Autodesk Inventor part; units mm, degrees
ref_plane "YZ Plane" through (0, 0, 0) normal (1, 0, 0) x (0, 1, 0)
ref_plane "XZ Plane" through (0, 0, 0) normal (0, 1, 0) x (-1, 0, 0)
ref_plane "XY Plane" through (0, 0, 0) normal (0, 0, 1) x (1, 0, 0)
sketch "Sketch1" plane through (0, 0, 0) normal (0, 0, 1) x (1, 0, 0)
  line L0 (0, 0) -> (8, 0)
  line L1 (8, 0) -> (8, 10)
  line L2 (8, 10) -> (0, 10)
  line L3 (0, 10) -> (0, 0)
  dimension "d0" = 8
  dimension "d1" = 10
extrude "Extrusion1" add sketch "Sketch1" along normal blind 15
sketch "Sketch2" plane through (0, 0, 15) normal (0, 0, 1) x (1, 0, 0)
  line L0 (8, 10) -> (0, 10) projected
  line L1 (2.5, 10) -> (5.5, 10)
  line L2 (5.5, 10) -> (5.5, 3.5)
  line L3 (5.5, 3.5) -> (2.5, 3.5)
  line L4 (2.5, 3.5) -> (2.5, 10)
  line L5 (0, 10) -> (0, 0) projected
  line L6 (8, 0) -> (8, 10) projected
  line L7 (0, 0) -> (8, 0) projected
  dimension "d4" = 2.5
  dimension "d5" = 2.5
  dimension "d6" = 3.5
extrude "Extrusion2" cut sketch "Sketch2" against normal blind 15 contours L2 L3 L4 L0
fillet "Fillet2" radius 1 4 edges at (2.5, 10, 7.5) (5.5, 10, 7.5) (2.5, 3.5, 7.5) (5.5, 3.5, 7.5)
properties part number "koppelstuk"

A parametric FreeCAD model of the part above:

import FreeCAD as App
import Part
import Sketcher

V = App.Vector
Q = App.Units.Quantity


def edges_at(feature, points):
    """Names of the edges that pass closest to the given points."""
    edges = feature.Shape.Edges
    near = lambda p: min(range(len(edges)), key=lambda i: edges[i].distToShape(Part.Vertex(*p))[0])
    return sorted({f"Edge{near(p) + 1}" for p in points})


def add_polygon(sketch, points):
    """Adds a closed chain of lines whose ends are joined by coincident constraints."""
    first, n = sketch.GeometryCount, len(points)
    for a, b in zip(points, points[1:] + points[:1]):
        sketch.addGeometry(Part.LineSegment(App.Vector(*a, 0), App.Vector(*b, 0)), False)
    for i in range(n):
        sketch.addConstraint(Sketcher.Constraint("Coincident", first + i, 2, first + (i + 1) % n, 1))

doc = App.newDocument("Part")
params = doc.addObject("Spreadsheet::Sheet", "Params")
for row, (alias, value) in enumerate([
    ("sketch1_width", "8 mm"),
    ("sketch1_height", "10 mm"),
    ("pad1_length", "15 mm"),
    ("sketch2_width", "3 mm"),
    ("sketch2_height", "6.5 mm"),
    ("pocket1_length", "15 mm"),
    ("fillet_radius", "1 mm"),
], start=1):
    params.set(f"A{row}", alias)
    params.set(f"B{row}", "=" + value)
    params.setAlias(f"B{row}", alias)

body = doc.addObject("PartDesign::Body", "Body")

# Sketch on XY plane
sketch1 = body.newObject("Sketcher::SketchObject", "Sketch")
sketch1.AttachmentSupport = (doc.getObject("XY_Plane"), [""])
sketch1.MapMode = "FlatFace"
add_polygon(sketch1, [(0, 10), (0, 0), (8, 0), (8, 10)])  # lines 0-3
sketch1.addConstraint(Sketcher.Constraint("Vertical", 0))
sketch1.addConstraint(Sketcher.Constraint("Horizontal", 1))
sketch1.addConstraint(Sketcher.Constraint("Vertical", 2))
sketch1.addConstraint(Sketcher.Constraint("Horizontal", 3))
sketch1.addConstraint(Sketcher.Constraint("Coincident", 0, 2, -1, 1))
sketch1.addConstraint(Sketcher.Constraint("DistanceX", 1, 1, 1, 2, Q("8 mm")))
sketch1.addConstraint(Sketcher.Constraint("DistanceY", 0, 2, 0, 1, Q("10 mm")))
sketch1.setExpression("Constraints[9]", "Params.sketch1_width")
sketch1.setExpression("Constraints[10]", "Params.sketch1_height")
pad1 = body.newObject("PartDesign::Pad", "Pad")
pad1.Profile = sketch1
pad1.setExpression("Length", "Params.pad1_length")

# Sketch on XY plane
sketch2 = body.newObject("Sketcher::SketchObject", "Sketch001")
sketch2.AttachmentSupport = (doc.getObject("XY_Plane"), [""])
sketch2.MapMode = "FlatFace"
sketch2.AttachmentOffset = App.Placement(V(0, 0, 15), App.Rotation())
add_polygon(sketch2, [(5.5, 3.5), (5.5, 10), (2.5, 10), (2.5, 3.5)])  # lines 0-3
sketch2.addConstraint(Sketcher.Constraint("Vertical", 0))
sketch2.addConstraint(Sketcher.Constraint("Horizontal", 1))
sketch2.addConstraint(Sketcher.Constraint("Vertical", 2))
sketch2.addConstraint(Sketcher.Constraint("Horizontal", 3))
sketch2.addConstraint(Sketcher.Constraint("DistanceX", -1, 1, 1, 2, Q("2.5 mm")))
sketch2.addConstraint(Sketcher.Constraint("DistanceY", -1, 1, 2, 2, Q("3.5 mm")))
sketch2.addConstraint(Sketcher.Constraint("DistanceX", 1, 2, 1, 1, Q("3 mm")))
sketch2.addConstraint(Sketcher.Constraint("DistanceY", 0, 1, 0, 2, Q("6.5 mm")))
sketch2.setExpression("Constraints[10]", "Params.sketch2_width")
sketch2.setExpression("Constraints[11]", "Params.sketch2_height")
pocket1 = body.newObject("PartDesign::Pocket", "Pocket")
pocket1.Profile = sketch2
pocket1.setExpression("Length", "Params.pocket1_length")
doc.recompute()

fillet = body.newObject("PartDesign::Fillet", "Fillet")
fillet.Base = (pocket1, edges_at(pocket1, [
    (2.5, 10, 7.5),
    (5.5, 10, 7.5),
    (2.5, 3.5, 7.5),
    (5.5, 3.5, 7.5),
]))
fillet.setExpression("Radius", "Params.fillet_radius")

doc.recompute()
